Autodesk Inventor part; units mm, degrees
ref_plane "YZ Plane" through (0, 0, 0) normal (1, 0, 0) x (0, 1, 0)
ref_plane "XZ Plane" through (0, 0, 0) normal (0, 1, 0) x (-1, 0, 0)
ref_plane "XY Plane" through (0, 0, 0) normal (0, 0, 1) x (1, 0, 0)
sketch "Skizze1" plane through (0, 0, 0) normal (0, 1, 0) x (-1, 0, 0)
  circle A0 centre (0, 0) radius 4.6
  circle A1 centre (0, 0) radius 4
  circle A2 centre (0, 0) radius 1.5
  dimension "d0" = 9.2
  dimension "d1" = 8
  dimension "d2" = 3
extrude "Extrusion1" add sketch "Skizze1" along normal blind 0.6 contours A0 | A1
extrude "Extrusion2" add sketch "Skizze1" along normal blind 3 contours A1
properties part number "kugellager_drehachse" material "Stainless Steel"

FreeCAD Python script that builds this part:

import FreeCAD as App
import Part
import Sketcher

V = App.Vector

doc = App.newDocument("Part")
body = doc.addObject("PartDesign::Body", "Body")

sketch1 = doc.addObject("Sketcher::SketchObject", "Sketch")
body.addObject(sketch1)
sketch1.AttachmentSupport = (doc.XZ_Plane, [""])
sketch1.MapMode = "FlatFace"
sketch1.addGeometry([
    Part.Circle(V(0, 0, 0), V(0, 0, 1), 4.6),
    Part.Circle(V(0, 0, 0), V(0, 0, 1), 1.5),
], False)
sketch1.addConstraint([
    Sketcher.Constraint("Coincident", 0, 3, -1, 1),
    Sketcher.Constraint("Coincident", 1, 3, -1, 1),
    Sketcher.Constraint("Diameter", 1, 3.0),
    Sketcher.Constraint("Diameter", 0, 9.2),
])
pad1 = doc.addObject("PartDesign::Pad", "Pad")
body.addObject(pad1)
pad1.Profile = sketch1
pad1.Length = 0.6
pad1.Reversed = True

sketch2 = doc.addObject("Sketcher::SketchObject", "Sketch001")
body.addObject(sketch2)
sketch2.AttachmentSupport = (doc.XZ_Plane, [""])
sketch2.MapMode = "FlatFace"
sketch2.addGeometry([
    Part.Circle(V(0, 0, 0), V(0, 0, 1), 4),
    Part.Circle(V(0, 0, 0), V(0, 0, 1), 1.5),
], False)
sketch2.addConstraint([
    Sketcher.Constraint("Coincident", 0, 3, -1, 1),
    Sketcher.Constraint("Coincident", 1, 3, -1, 1),
    Sketcher.Constraint("Diameter", 0, 8.0),
    Sketcher.Constraint("Diameter", 1, 3.0),
])
pad2 = doc.addObject("PartDesign::Pad", "Pad001")
body.addObject(pad2)
pad2.Profile = sketch2
pad2.Length = 3
pad2.Reversed = True

doc.recompute()
